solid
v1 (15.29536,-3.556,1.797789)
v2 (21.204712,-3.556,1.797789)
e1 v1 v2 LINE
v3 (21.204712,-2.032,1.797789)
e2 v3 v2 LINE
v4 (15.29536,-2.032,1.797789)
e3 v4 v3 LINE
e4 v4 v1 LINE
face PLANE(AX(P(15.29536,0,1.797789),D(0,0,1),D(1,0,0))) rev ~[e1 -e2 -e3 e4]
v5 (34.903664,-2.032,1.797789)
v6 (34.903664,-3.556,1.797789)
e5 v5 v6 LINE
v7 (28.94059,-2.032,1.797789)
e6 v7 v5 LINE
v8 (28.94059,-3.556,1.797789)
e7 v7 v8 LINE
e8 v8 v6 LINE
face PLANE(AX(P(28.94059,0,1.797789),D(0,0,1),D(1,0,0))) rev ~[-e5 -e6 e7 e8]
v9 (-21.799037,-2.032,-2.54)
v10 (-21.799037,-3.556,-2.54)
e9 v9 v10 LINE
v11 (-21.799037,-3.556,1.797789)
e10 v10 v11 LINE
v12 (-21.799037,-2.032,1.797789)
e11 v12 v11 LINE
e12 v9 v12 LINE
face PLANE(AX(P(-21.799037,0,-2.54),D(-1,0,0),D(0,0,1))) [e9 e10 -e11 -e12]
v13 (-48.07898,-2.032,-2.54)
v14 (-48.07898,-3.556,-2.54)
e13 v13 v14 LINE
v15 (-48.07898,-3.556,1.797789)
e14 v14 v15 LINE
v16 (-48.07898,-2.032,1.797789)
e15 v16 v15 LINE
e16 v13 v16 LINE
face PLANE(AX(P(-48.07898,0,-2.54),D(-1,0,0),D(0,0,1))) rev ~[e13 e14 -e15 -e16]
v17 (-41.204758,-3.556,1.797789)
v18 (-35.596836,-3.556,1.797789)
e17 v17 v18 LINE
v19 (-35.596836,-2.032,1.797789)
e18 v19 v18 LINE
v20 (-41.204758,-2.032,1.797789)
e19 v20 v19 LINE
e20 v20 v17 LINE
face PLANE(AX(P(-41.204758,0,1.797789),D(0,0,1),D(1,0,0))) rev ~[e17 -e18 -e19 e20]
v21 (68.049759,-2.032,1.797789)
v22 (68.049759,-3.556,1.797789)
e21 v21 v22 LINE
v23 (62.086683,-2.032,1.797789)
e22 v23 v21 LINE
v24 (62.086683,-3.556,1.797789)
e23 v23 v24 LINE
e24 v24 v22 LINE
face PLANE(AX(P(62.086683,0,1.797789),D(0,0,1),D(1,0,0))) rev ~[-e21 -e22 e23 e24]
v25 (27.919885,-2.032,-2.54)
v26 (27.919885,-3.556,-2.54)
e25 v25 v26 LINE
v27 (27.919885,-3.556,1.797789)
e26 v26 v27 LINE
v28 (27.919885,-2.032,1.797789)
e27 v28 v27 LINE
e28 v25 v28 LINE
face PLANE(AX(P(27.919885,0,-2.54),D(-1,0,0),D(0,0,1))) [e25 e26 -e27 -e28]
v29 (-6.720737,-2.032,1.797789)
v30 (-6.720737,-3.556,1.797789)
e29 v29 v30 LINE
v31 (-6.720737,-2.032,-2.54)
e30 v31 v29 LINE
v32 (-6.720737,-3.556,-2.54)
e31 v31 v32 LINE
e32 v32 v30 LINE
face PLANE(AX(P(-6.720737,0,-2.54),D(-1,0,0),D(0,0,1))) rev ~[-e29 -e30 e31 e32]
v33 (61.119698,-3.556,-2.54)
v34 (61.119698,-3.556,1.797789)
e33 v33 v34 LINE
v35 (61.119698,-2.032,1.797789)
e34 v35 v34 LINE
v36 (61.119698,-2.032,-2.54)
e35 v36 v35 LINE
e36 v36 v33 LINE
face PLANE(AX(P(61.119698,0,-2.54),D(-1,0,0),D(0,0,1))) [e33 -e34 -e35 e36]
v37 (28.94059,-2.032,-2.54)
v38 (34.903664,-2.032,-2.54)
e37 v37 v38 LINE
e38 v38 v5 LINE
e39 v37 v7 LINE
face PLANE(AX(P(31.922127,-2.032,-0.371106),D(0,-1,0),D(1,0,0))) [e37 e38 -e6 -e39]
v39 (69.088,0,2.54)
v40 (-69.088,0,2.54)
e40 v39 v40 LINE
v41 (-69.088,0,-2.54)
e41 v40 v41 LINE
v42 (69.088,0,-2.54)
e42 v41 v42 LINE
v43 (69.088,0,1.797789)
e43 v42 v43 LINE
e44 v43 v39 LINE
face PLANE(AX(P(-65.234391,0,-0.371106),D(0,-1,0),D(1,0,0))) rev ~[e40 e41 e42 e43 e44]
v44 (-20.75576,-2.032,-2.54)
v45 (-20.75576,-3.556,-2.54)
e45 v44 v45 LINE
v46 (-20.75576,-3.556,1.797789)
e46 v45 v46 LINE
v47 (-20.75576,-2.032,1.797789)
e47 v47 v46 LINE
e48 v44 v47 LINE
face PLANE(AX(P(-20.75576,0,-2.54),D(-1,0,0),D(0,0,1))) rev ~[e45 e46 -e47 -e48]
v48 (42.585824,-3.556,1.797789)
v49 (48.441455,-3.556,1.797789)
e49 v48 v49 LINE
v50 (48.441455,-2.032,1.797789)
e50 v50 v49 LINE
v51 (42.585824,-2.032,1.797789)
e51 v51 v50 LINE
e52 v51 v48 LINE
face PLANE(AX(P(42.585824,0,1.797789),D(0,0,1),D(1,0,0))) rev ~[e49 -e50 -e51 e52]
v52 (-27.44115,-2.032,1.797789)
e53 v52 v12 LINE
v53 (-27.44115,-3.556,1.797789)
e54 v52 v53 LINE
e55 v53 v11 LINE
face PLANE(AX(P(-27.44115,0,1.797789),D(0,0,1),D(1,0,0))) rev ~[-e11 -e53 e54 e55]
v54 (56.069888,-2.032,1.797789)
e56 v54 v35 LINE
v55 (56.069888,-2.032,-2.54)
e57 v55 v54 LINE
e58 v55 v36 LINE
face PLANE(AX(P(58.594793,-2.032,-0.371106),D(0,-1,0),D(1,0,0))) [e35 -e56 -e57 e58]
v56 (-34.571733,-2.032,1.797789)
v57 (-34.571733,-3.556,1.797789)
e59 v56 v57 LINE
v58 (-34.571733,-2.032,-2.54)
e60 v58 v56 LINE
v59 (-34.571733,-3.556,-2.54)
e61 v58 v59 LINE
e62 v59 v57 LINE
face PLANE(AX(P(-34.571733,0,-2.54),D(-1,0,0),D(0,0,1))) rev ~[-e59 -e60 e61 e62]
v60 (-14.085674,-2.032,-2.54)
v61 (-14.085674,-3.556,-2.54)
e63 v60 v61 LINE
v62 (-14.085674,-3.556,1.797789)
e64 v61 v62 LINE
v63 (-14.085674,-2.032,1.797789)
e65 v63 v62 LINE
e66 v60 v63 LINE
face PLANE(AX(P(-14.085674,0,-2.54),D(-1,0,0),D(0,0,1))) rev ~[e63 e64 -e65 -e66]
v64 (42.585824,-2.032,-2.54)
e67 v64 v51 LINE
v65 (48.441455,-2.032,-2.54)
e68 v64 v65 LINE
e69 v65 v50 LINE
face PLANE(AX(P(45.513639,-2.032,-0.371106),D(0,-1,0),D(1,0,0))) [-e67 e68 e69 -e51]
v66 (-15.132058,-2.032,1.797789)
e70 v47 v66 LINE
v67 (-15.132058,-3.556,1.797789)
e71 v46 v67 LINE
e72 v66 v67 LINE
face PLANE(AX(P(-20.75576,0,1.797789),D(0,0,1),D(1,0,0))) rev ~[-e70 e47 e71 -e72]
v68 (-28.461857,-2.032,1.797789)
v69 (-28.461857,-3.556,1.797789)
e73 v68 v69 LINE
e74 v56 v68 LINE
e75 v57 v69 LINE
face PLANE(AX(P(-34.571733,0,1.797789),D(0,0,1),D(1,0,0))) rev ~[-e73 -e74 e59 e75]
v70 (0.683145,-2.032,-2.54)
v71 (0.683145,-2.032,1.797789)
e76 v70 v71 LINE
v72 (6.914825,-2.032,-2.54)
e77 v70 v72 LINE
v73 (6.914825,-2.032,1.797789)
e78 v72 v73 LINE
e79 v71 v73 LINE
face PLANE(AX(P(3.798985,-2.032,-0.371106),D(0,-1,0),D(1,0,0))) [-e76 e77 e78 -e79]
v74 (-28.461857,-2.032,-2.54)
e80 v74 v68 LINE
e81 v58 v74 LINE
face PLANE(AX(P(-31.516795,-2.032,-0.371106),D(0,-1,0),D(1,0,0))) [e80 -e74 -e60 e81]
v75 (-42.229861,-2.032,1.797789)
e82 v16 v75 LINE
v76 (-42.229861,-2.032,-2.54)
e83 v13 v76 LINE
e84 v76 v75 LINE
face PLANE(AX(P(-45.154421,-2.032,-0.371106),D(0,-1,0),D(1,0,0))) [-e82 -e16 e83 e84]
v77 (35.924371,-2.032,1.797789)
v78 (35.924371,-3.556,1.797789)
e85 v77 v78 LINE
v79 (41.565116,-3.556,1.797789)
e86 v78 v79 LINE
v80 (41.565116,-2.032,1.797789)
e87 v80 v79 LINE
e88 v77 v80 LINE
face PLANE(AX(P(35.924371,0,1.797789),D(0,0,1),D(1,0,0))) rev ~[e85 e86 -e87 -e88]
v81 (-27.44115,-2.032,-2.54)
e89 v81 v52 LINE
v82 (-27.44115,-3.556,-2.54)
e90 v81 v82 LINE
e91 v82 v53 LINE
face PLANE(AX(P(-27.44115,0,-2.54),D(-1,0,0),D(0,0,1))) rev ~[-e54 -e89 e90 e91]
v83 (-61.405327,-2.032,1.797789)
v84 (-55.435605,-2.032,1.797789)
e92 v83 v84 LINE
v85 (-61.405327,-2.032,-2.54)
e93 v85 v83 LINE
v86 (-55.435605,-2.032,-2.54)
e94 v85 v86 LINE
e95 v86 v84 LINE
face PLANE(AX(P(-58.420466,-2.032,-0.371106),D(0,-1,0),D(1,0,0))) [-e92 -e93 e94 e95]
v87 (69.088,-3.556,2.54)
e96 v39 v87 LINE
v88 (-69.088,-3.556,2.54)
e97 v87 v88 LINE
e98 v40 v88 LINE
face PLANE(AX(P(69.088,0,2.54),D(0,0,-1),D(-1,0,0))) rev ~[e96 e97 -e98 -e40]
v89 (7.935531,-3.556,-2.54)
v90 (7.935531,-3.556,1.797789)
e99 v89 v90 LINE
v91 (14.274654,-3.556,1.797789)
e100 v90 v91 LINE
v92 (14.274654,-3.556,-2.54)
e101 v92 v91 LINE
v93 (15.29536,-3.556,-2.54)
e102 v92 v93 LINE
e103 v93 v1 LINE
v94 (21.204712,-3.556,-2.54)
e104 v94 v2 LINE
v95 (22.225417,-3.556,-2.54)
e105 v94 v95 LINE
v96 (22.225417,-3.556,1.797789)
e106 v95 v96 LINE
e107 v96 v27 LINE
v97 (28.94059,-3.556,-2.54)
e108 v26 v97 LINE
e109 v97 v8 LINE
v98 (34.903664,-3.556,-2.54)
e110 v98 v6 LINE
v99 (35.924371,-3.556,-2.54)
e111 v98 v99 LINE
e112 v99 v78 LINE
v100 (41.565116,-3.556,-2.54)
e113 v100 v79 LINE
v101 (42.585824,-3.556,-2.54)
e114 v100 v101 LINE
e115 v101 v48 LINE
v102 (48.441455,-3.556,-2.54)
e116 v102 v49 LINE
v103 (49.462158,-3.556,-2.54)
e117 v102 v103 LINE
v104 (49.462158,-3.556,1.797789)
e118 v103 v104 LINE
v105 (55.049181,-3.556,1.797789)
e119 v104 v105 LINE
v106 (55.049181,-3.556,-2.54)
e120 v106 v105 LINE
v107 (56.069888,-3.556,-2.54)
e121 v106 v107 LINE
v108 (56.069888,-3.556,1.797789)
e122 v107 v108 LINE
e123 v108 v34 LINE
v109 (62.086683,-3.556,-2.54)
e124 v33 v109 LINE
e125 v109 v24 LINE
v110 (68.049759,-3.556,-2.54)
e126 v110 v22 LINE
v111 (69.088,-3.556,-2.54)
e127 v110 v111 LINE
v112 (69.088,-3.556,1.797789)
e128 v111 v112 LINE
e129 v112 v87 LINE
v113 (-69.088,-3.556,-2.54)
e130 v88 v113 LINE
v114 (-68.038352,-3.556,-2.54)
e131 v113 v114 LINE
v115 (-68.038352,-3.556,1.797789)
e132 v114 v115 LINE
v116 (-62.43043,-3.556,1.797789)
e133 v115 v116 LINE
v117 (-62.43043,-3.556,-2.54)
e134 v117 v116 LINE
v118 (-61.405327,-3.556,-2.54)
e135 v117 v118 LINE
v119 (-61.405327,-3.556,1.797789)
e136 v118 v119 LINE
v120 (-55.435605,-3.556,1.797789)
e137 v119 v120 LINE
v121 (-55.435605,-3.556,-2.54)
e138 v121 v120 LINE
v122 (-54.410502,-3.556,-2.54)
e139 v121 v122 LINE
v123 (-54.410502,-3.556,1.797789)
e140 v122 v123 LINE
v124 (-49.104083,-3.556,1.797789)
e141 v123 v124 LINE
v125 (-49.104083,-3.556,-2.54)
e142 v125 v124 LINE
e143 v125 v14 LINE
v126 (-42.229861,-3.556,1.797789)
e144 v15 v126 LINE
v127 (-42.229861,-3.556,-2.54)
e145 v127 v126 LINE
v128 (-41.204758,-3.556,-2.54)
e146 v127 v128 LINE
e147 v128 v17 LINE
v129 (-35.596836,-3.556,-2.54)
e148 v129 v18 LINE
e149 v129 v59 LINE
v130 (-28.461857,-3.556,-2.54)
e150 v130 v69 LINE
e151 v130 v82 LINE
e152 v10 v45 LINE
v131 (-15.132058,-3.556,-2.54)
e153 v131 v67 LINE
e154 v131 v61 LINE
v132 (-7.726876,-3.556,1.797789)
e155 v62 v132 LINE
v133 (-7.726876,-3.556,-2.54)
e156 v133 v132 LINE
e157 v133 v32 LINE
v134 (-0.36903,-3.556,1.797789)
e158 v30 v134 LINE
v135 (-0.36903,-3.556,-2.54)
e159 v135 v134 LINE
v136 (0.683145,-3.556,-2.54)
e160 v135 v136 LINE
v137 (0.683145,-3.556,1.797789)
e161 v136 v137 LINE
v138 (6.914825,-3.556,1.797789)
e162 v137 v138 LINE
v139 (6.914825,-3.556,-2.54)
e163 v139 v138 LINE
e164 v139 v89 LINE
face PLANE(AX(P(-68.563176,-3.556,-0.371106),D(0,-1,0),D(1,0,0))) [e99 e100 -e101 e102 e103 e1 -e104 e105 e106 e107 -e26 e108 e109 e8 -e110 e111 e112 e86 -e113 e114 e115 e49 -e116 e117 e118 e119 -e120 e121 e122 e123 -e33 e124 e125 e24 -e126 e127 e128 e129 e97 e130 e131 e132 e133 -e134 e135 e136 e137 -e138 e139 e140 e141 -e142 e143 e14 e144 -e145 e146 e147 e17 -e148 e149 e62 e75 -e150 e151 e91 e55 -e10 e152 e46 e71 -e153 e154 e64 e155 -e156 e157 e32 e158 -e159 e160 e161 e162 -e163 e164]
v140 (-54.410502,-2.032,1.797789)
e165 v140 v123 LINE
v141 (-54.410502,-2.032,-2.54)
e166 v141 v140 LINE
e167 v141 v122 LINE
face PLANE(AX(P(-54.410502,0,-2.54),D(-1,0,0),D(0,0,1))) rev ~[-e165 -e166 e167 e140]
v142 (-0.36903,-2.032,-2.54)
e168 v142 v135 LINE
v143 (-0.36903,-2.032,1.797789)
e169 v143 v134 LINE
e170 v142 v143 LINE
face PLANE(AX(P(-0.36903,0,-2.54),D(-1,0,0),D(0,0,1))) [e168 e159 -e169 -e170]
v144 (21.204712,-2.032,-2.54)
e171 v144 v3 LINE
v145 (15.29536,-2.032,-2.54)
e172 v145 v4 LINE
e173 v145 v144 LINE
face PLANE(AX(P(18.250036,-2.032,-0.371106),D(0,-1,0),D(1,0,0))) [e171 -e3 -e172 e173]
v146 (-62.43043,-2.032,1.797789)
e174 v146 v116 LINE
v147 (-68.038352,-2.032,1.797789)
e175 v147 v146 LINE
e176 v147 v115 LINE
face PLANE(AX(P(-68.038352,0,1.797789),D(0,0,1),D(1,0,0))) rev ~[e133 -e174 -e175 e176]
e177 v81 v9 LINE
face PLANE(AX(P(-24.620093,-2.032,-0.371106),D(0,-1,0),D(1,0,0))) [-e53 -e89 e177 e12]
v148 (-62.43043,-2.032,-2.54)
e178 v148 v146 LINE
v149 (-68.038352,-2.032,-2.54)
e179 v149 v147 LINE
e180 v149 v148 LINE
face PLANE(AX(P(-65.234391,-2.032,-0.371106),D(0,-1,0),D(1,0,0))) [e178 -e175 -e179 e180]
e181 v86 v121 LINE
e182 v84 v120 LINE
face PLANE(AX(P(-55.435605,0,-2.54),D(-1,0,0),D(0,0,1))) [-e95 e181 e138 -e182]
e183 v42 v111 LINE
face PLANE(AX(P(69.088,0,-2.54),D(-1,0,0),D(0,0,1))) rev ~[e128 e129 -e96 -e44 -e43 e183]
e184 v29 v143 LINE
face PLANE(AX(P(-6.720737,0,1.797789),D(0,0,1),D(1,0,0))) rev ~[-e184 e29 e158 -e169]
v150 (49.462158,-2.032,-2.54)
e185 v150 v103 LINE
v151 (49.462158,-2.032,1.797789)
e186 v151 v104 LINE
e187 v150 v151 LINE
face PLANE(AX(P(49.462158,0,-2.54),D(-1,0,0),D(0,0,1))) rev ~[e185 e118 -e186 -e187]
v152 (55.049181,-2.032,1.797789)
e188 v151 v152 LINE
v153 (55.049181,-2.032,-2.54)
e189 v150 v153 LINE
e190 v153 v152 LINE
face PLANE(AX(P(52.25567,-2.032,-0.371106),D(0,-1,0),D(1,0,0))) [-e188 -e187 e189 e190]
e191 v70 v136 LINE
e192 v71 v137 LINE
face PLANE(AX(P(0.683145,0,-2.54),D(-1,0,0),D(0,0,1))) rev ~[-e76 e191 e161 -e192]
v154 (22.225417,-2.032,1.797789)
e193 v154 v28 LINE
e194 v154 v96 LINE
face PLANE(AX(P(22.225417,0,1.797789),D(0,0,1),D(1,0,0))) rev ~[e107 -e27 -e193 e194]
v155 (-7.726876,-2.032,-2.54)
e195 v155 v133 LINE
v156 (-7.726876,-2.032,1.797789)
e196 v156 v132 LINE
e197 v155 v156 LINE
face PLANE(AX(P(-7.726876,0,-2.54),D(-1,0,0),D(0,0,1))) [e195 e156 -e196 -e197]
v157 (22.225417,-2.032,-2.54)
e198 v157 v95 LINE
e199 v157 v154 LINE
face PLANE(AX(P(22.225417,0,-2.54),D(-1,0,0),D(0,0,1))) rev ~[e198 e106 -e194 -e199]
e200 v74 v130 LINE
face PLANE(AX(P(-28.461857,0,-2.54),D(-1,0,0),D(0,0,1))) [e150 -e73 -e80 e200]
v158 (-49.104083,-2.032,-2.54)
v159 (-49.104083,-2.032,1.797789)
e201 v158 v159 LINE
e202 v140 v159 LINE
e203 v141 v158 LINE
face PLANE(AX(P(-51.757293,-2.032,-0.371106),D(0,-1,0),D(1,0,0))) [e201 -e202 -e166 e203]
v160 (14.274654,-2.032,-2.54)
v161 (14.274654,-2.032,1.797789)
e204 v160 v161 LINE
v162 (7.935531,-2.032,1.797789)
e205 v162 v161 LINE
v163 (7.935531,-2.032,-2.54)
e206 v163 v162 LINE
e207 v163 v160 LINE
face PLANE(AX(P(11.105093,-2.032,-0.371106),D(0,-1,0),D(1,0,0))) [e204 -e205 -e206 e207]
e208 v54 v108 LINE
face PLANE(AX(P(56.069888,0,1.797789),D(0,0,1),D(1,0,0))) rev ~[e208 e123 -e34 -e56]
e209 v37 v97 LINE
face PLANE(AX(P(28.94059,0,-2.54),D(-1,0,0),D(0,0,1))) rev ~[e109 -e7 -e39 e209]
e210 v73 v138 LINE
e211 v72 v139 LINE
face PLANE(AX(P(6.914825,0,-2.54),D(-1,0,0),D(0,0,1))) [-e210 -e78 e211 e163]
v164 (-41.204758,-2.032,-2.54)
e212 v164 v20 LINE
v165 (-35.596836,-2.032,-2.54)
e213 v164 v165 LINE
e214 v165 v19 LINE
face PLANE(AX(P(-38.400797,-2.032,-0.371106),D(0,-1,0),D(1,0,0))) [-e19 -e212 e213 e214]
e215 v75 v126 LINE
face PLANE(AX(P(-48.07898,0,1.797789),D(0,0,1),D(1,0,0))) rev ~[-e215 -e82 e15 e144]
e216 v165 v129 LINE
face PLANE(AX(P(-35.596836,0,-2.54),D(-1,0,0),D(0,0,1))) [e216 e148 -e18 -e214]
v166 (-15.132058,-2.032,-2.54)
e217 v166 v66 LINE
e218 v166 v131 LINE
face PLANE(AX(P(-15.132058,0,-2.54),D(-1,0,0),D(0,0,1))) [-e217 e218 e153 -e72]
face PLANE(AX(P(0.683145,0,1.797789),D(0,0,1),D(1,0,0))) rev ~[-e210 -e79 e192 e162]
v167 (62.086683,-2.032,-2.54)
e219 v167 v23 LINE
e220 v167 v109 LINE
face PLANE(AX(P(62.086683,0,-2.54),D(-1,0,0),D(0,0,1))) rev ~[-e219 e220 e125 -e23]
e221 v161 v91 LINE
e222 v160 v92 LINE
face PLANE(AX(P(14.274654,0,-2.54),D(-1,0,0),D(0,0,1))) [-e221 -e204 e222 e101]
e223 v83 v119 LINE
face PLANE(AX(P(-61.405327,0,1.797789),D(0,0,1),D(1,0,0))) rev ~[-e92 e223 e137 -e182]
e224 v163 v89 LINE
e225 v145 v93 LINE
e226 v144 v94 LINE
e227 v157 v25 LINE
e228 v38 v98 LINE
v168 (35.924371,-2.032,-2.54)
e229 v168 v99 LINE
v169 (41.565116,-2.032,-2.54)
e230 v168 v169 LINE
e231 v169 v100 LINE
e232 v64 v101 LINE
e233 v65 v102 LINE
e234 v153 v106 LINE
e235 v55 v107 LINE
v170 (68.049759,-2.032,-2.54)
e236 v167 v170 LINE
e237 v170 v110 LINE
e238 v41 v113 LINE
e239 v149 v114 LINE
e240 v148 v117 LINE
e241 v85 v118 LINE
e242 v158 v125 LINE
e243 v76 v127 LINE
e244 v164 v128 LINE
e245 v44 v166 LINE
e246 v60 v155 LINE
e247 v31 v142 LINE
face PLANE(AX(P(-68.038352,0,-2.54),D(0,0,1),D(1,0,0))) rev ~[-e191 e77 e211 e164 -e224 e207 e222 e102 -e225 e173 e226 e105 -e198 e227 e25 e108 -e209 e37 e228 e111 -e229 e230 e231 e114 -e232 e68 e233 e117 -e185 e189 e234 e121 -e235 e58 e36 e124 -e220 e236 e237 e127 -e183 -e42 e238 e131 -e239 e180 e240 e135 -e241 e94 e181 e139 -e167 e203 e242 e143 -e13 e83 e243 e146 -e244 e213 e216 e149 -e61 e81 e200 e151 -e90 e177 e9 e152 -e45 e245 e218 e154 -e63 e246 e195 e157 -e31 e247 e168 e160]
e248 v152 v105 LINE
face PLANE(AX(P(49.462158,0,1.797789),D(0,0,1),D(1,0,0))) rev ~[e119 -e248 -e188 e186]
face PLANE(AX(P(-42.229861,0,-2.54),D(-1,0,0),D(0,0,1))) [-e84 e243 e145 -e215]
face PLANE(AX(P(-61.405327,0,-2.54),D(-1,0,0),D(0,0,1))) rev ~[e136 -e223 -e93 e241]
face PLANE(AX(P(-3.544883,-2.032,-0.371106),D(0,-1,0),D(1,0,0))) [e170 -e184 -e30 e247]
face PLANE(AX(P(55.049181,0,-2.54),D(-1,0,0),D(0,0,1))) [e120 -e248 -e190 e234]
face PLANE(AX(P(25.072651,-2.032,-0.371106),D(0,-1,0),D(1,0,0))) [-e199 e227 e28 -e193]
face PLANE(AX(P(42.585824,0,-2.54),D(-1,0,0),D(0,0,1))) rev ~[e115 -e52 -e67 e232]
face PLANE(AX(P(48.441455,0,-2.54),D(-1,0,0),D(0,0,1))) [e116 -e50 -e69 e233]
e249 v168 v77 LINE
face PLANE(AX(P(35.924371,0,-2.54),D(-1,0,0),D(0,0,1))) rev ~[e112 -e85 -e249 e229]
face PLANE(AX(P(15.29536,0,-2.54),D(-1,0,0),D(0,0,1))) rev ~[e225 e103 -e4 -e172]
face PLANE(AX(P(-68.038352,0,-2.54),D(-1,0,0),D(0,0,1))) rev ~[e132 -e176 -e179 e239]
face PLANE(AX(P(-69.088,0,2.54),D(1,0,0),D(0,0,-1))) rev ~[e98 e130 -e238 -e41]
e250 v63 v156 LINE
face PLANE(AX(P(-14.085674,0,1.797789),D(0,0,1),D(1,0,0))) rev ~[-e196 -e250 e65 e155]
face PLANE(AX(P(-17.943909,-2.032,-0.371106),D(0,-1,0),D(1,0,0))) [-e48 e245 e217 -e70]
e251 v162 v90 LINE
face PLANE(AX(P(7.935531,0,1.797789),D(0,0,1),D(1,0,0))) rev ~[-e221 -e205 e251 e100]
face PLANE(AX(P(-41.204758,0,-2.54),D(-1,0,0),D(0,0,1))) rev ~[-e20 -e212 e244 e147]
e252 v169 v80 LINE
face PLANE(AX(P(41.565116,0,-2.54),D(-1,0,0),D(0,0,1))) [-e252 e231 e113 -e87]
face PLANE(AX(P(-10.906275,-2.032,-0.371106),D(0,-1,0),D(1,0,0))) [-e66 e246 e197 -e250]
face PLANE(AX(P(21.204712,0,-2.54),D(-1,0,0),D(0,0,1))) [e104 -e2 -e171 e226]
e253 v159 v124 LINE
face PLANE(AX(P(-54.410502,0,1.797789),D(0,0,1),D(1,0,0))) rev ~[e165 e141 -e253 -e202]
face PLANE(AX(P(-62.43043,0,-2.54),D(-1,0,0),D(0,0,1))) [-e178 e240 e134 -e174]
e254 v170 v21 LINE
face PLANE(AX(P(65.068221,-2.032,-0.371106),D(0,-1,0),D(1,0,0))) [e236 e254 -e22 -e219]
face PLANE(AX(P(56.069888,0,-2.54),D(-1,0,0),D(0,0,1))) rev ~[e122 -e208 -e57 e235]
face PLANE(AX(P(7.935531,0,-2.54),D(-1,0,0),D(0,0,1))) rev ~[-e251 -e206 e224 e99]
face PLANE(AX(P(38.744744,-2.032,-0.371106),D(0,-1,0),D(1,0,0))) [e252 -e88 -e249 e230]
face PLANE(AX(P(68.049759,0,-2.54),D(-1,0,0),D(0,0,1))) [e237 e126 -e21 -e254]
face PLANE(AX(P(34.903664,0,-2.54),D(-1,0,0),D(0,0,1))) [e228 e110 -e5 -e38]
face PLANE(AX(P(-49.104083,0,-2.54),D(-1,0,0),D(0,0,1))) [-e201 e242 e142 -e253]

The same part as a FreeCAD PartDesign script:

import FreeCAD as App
import Part
import Sketcher
from FreeCAD import Vector
Q = App.Units.Quantity


def add_polygon(sketch, points):
    """Adds a closed chain of lines whose ends are joined by coincident constraints."""
    first, n = sketch.GeometryCount, len(points)
    for a, b in zip(points, points[1:] + points[:1]):
        sketch.addGeometry(Part.LineSegment(App.Vector(*a, 0), App.Vector(*b, 0)), False)
    for i in range(n):
        sketch.addConstraint(Sketcher.Constraint("Coincident", first + i, 2, first + (i + 1) % n, 1))

doc = App.newDocument("Part")
body = doc.addObject("PartDesign::Body", "Body")

sketch1 = body.newObject("Sketcher::SketchObject", "Sketch")
sketch1.AttachmentSupport = (doc.getObject("XZ_Plane"), [""])
sketch1.MapMode = "FlatFace"
add_polygon(sketch1, [(-69.1, -2.5), (-68, -2.5), (-68, 1.8), (-62.4, 1.8), (-62.4, -2.5), (-61.4, -2.5), (-61.4, 1.8), (-55.4, 1.8), (-55.4, -2.5), (-54.4, -2.5), (-54.4, 1.8), (-49.1, 1.8), (-49.1, -2.5), (-48.1, -2.5), (-48.1, 1.8), (-42.2, 1.8), (-42.2, -2.5), (-41.2, -2.5), (-41.2, 1.8), (-35.6, 1.8), (-35.6, -2.5), (-34.6, -2.5), (-34.6, 1.8), (-28.5, 1.8), (-28.5, -2.5), (-27.4, -2.5), (-27.4, 1.8), (-21.8, 1.8), (-21.8, -2.5), (-20.8, -2.5), (-20.8, 1.8), (-15.1, 1.8), (-15.1, -2.5), (-14.1, -2.5), (-14.1, 1.8), (-7.7, 1.8), (-7.7, -2.5), (-6.7, -2.5), (-6.7, 1.8), (-0.4, 1.8), (-0.4, -2.5), (0.7, -2.5), (0.7, 1.8), (6.9, 1.8), (6.9, -2.5), (7.9, -2.5), (7.9, 1.8), (14.3, 1.8), (14.3, -2.5), (15.3, -2.5), (15.3, 1.8), (21.2, 1.8), (21.2, -2.5), (22.2, -2.5), (22.2, 1.8), (27.9, 1.8), (27.9, -2.5), (28.9, -2.5), (28.9, 1.8), (34.9, 1.8), (34.9, -2.5), (35.9, -2.5), (35.9, 1.8), (41.6, 1.8), (41.6, -2.5), (42.6, -2.5), (42.6, 1.8), (48.4, 1.8), (48.4, -2.5), (49.5, -2.5), (49.5, 1.8), (55, 1.8), (55, -2.5), (56.1, -2.5), (56.1, 1.8), (61.1, 1.8), (61.1, -2.5), (62.1, -2.5), (62.1, 1.8), (68, 1.8), (68, -2.5), (69.1, -2.5), (69.1, 1.8), (69.1, 2.5), (-69.1, 2.5)])
sketch1.addConstraint(Sketcher.Constraint("Horizontal", 0))
sketch1.addConstraint(Sketcher.Constraint("Vertical", 1))
sketch1.addConstraint(Sketcher.Constraint("Horizontal", 2))
sketch1.addConstraint(Sketcher.Constraint("Vertical", 3))
sketch1.addConstraint(Sketcher.Constraint("Horizontal", 4))
sketch1.addConstraint(Sketcher.Constraint("Vertical", 5))
sketch1.addConstraint(Sketcher.Constraint("Horizontal", 6))
sketch1.addConstraint(Sketcher.Constraint("Vertical", 7))
sketch1.addConstraint(Sketcher.Constraint("Horizontal", 8))
sketch1.addConstraint(Sketcher.Constraint("Vertical", 9))
sketch1.addConstraint(Sketcher.Constraint("Horizontal", 10))
sketch1.addConstraint(Sketcher.Constraint("Vertical", 11))
sketch1.addConstraint(Sketcher.Constraint("Horizontal", 12))
sketch1.addConstraint(Sketcher.Constraint("Vertical", 13))
sketch1.addConstraint(Sketcher.Constraint("Horizontal", 14))
sketch1.addConstraint(Sketcher.Constraint("Vertical", 15))
sketch1.addConstraint(Sketcher.Constraint("Horizontal", 16))
sketch1.addConstraint(Sketcher.Constraint("Vertical", 17))
sketch1.addConstraint(Sketcher.Constraint("Horizontal", 18))
sketch1.addConstraint(Sketcher.Constraint("Vertical", 19))
sketch1.addConstraint(Sketcher.Constraint("Horizontal", 20))
sketch1.addConstraint(Sketcher.Constraint("Vertical", 21))
sketch1.addConstraint(Sketcher.Constraint("Horizontal", 22))
sketch1.addConstraint(Sketcher.Constraint("Vertical", 23))
sketch1.addConstraint(Sketcher.Constraint("Horizontal", 24))
sketch1.addConstraint(Sketcher.Constraint("Vertical", 25))
sketch1.addConstraint(Sketcher.Constraint("Horizontal", 26))
sketch1.addConstraint(Sketcher.Constraint("Vertical", 27))
sketch1.addConstraint(Sketcher.Constraint("Horizontal", 28))
sketch1.addConstraint(Sketcher.Constraint("Vertical", 29))
sketch1.addConstraint(Sketcher.Constraint("Horizontal", 30))
sketch1.addConstraint(Sketcher.Constraint("Vertical", 31))
sketch1.addConstraint(Sketcher.Constraint("Horizontal", 32))
sketch1.addConstraint(Sketcher.Constraint("Vertical", 33))
sketch1.addConstraint(Sketcher.Constraint("Horizontal", 34))
sketch1.addConstraint(Sketcher.Constraint("Vertical", 35))
sketch1.addConstraint(Sketcher.Constraint("Horizontal", 36))
sketch1.addConstraint(Sketcher.Constraint("Vertical", 37))
sketch1.addConstraint(Sketcher.Constraint("Horizontal", 38))
sketch1.addConstraint(Sketcher.Constraint("Vertical", 39))
sketch1.addConstraint(Sketcher.Constraint("Horizontal", 40))
sketch1.addConstraint(Sketcher.Constraint("Vertical", 41))
sketch1.addConstraint(Sketcher.Constraint("Horizontal", 42))
sketch1.addConstraint(Sketcher.Constraint("Vertical", 43))
sketch1.addConstraint(Sketcher.Constraint("Horizontal", 44))
sketch1.addConstraint(Sketcher.Constraint("Vertical", 45))
sketch1.addConstraint(Sketcher.Constraint("Horizontal", 46))
sketch1.addConstraint(Sketcher.Constraint("Vertical", 47))
sketch1.addConstraint(Sketcher.Constraint("Horizontal", 48))
sketch1.addConstraint(Sketcher.Constraint("Vertical", 49))
sketch1.addConstraint(Sketcher.Constraint("Horizontal", 50))
sketch1.addConstraint(Sketcher.Constraint("Vertical", 51))
sketch1.addConstraint(Sketcher.Constraint("Horizontal", 52))
sketch1.addConstraint(Sketcher.Constraint("Vertical", 53))
sketch1.addConstraint(Sketcher.Constraint("Horizontal", 54))
sketch1.addConstraint(Sketcher.Constraint("Vertical", 55))
sketch1.addConstraint(Sketcher.Constraint("Horizontal", 56))
sketch1.addConstraint(Sketcher.Constraint("Vertical", 57))
sketch1.addConstraint(Sketcher.Constraint("Horizontal", 58))
sketch1.addConstraint(Sketcher.Constraint("Vertical", 59))
sketch1.addConstraint(Sketcher.Constraint("Horizontal", 60))
sketch1.addConstraint(Sketcher.Constraint("Vertical", 61))
sketch1.addConstraint(Sketcher.Constraint("Horizontal", 62))
sketch1.addConstraint(Sketcher.Constraint("Vertical", 63))
sketch1.addConstraint(Sketcher.Constraint("Horizontal", 64))
sketch1.addConstraint(Sketcher.Constraint("Vertical", 65))
sketch1.addConstraint(Sketcher.Constraint("Horizontal", 66))
sketch1.addConstraint(Sketcher.Constraint("Vertical", 67))
sketch1.addConstraint(Sketcher.Constraint("Horizontal", 68))
sketch1.addConstraint(Sketcher.Constraint("Vertical", 69))
sketch1.addConstraint(Sketcher.Constraint("Horizontal", 70))
sketch1.addConstraint(Sketcher.Constraint("Vertical", 71))
sketch1.addConstraint(Sketcher.Constraint("Horizontal", 72))
sketch1.addConstraint(Sketcher.Constraint("Vertical", 73))
sketch1.addConstraint(Sketcher.Constraint("Horizontal", 74))
sketch1.addConstraint(Sketcher.Constraint("Vertical", 75))
sketch1.addConstraint(Sketcher.Constraint("Horizontal", 76))
sketch1.addConstraint(Sketcher.Constraint("Vertical", 77))
sketch1.addConstraint(Sketcher.Constraint("Horizontal", 78))
sketch1.addConstraint(Sketcher.Constraint("Vertical", 79))
sketch1.addConstraint(Sketcher.Constraint("Horizontal", 80))
sketch1.addConstraint(Sketcher.Constraint("Vertical", 81))
sketch1.addConstraint(Sketcher.Constraint("Vertical", 82))
sketch1.addConstraint(Sketcher.Constraint("Horizontal", 83))
sketch1.addConstraint(Sketcher.Constraint("Vertical", 84))
sketch1.addConstraint(Sketcher.Constraint("Symmetric", 80, 2, 83, 2, -1, 1))
sketch1.addConstraint(Sketcher.Constraint("Horizontal", 0, 2, 3, 2))
sketch1.addConstraint(Sketcher.Constraint("Horizontal", 2, 2, 5, 2))
sketch1.addConstraint(Sketcher.Constraint("Horizontal", 4, 2, 7, 2))
sketch1.addConstraint(Sketcher.Constraint("Horizontal", 6, 2, 9, 2))
sketch1.addConstraint(Sketcher.Constraint("Horizontal", 8, 2, 11, 2))
sketch1.addConstraint(Sketcher.Constraint("Horizontal", 10, 2, 13, 2))
sketch1.addConstraint(Sketcher.Constraint("Horizontal", 12, 2, 15, 2))
sketch1.addConstraint(Sketcher.Constraint("Horizontal", 14, 2, 17, 2))
sketch1.addConstraint(Sketcher.Constraint("Horizontal", 16, 2, 19, 2))
sketch1.addConstraint(Sketcher.Constraint("Horizontal", 18, 2, 21, 2))
sketch1.addConstraint(Sketcher.Constraint("Horizontal", 20, 2, 23, 2))
sketch1.addConstraint(Sketcher.Constraint("Horizontal", 22, 2, 25, 2))
sketch1.addConstraint(Sketcher.Constraint("Horizontal", 24, 2, 27, 2))
sketch1.addConstraint(Sketcher.Constraint("Horizontal", 26, 2, 29, 2))
sketch1.addConstraint(Sketcher.Constraint("Horizontal", 28, 2, 31, 2))
sketch1.addConstraint(Sketcher.Constraint("Horizontal", 30, 2, 33, 2))
sketch1.addConstraint(Sketcher.Constraint("Horizontal", 32, 2, 35, 2))
sketch1.addConstraint(Sketcher.Constraint("Horizontal", 34, 2, 37, 2))
sketch1.addConstraint(Sketcher.Constraint("Horizontal", 36, 2, 39, 2))
sketch1.addConstraint(Sketcher.Constraint("Horizontal", 38, 2, 41, 2))
sketch1.addConstraint(Sketcher.Constraint("Horizontal", 40, 2, 43, 2))
sketch1.addConstraint(Sketcher.Constraint("Horizontal", 42, 2, 45, 2))
sketch1.addConstraint(Sketcher.Constraint("Horizontal", 44, 2, 47, 2))
sketch1.addConstraint(Sketcher.Constraint("Horizontal", 46, 2, 49, 2))
sketch1.addConstraint(Sketcher.Constraint("Horizontal", 48, 2, 51, 2))
sketch1.addConstraint(Sketcher.Constraint("Horizontal", 50, 2, 53, 2))
sketch1.addConstraint(Sketcher.Constraint("Horizontal", 52, 2, 55, 2))
sketch1.addConstraint(Sketcher.Constraint("Horizontal", 54, 2, 57, 2))
sketch1.addConstraint(Sketcher.Constraint("Horizontal", 56, 2, 59, 2))
sketch1.addConstraint(Sketcher.Constraint("Horizontal", 58, 2, 61, 2))
sketch1.addConstraint(Sketcher.Constraint("Horizontal", 60, 2, 63, 2))
sketch1.addConstraint(Sketcher.Constraint("Horizontal", 62, 2, 65, 2))
sketch1.addConstraint(Sketcher.Constraint("Horizontal", 64, 2, 67, 2))
sketch1.addConstraint(Sketcher.Constraint("Horizontal", 66, 2, 69, 2))
sketch1.addConstraint(Sketcher.Constraint("Horizontal", 68, 2, 71, 2))
sketch1.addConstraint(Sketcher.Constraint("Horizontal", 70, 2, 73, 2))
sketch1.addConstraint(Sketcher.Constraint("Horizontal", 72, 2, 75, 2))
sketch1.addConstraint(Sketcher.Constraint("Horizontal", 74, 2, 77, 2))
sketch1.addConstraint(Sketcher.Constraint("Horizontal", 76, 2, 79, 2))
sketch1.addConstraint(Sketcher.Constraint("Horizontal", 78, 2, 81, 2))
sketch1.addConstraint(Sketcher.Constraint("Equal", 4, 8))
sketch1.addConstraint(Sketcher.Constraint("Equal", 8, 12))
sketch1.addConstraint(Sketcher.Constraint("Equal", 12, 16))
sketch1.addConstraint(Sketcher.Constraint("Equal", 2, 18))
sketch1.addConstraint(Sketcher.Constraint("Equal", 16, 20))
sketch1.addConstraint(Sketcher.Constraint("Equal", 24, 44))
sketch1.addConstraint(Sketcher.Constraint("Equal", 44, 48))
sketch1.addConstraint(Sketcher.Constraint("Equal", 48, 52))
sketch1.addConstraint(Sketcher.Constraint("Equal", 52, 56))
sketch1.addConstraint(Sketcher.Constraint("Equal", 56, 60))
sketch1.addConstraint(Sketcher.Constraint("Equal", 60, 64))
sketch1.addConstraint(Sketcher.Constraint("Equal", 56, 68))
sketch1.addConstraint(Sketcher.Constraint("Equal", 64, 72))
sketch1.addConstraint(Sketcher.Constraint("Equal", 58, 78))
sketch1.addConstraint(Sketcher.Constraint("DistanceY", 84, 2, 84, 1, Q("0.2 in")))
sketch1.addConstraint(Sketcher.Constraint("DistanceX", 83, 2, 83, 1, Q("5.44 in")))
sketch1.addConstraint(Sketcher.Constraint("DistanceX", 30, 1, 30, 2, Q("5.623702 mm")))
sketch1.addConstraint(Sketcher.Constraint("DistanceX", 34, 1, 34, 2, Q("6.358798 mm")))
sketch1.addConstraint(Sketcher.Constraint("DistanceX", 0, 1, 0, 2, Q("1.049648 mm")))
sketch1.addConstraint(Sketcher.Constraint("DistanceX", 2, 1, 2, 2, Q("5.607922 mm")))
sketch1.addConstraint(Sketcher.Constraint("DistanceX", 6, 1, 6, 2, Q("5.969722 mm")))
sketch1.addConstraint(Sketcher.Constraint("DistanceX", 10, 1, 10, 2, Q("5.306419 mm")))
sketch1.addConstraint(Sketcher.Constraint("DistanceX", 14, 1, 14, 2, Q("5.849119 mm")))
sketch1.addConstraint(Sketcher.Constraint("DistanceX", 36, 1, 36, 2, Q("1.006139 mm")))
sketch1.addConstraint(Sketcher.Constraint("DistanceX", 42, 1, 42, 2, Q("6.23168 mm")))
sketch1.addConstraint(Sketcher.Constraint("DistanceX", 50, 1, 50, 2, Q("5.909352 mm")))
sketch1.addConstraint(Sketcher.Constraint("DistanceX", 66, 1, 66, 2, Q("5.855631 mm")))
sketch1.addConstraint(Sketcher.Constraint("DistanceX", 74, 1, 74, 2, Q("5.04981 mm")))
sketch1.addConstraint(Sketcher.Constraint("DistanceX", 80, 1, 80, 2, Q("1.038241 mm")))
sketch1.addConstraint(Sketcher.Constraint("DistanceY", 1, 1, 1, 2, Q("4.337789 mm")))
sketch1.addConstraint(Sketcher.Constraint("DistanceX", 4, 1, 4, 2, Q("1.025103 mm")))
sketch1.addConstraint(Sketcher.Constraint("DistanceX", 22, 1, 22, 2, Q("6.109877 mm")))
sketch1.addConstraint(Sketcher.Constraint("DistanceX", 24, 1, 24, 2, Q("1.020707 mm")))
sketch1.addConstraint(Sketcher.Constraint("DistanceX", 26, 1, 26, 2, Q("5.642112 mm")))
sketch1.addConstraint(Sketcher.Constraint("DistanceX", 28, 1, 28, 2, Q("1.043277 mm")))
sketch1.addConstraint(Sketcher.Constraint("DistanceX", 32, 1, 32, 2, Q("1.046385 mm")))
sketch1.addConstraint(Sketcher.Constraint("DistanceX", 38, 1, 38, 2, Q("6.351706 mm")))
sketch1.addConstraint(Sketcher.Constraint("DistanceX", 40, 1, 40, 2, Q("1.052176 mm")))
sketch1.addConstraint(Sketcher.Constraint("DistanceX", 46, 1, 46, 2, Q("6.339123 mm")))
sketch1.addConstraint(Sketcher.Constraint("DistanceX", 54, 1, 54, 2, Q("5.694468 mm")))
sketch1.addConstraint(Sketcher.Constraint("DistanceX", 58, 1, 58, 2, Q("5.963074 mm")))
sketch1.addConstraint(Sketcher.Constraint("DistanceX", 62, 1, 62, 2, Q("5.640745 mm")))
sketch1.addConstraint(Sketcher.Constraint("DistanceX", 70, 1, 70, 2, Q("5.587023 mm")))
pad1 = body.newObject("PartDesign::Pad", "Pad")
pad1.Profile = sketch1
pad1.Length = Q("0.14 in")

sketch2 = body.newObject("Sketcher::SketchObject", "Sketch001")
sketch2.AttachmentSupport = (doc.getObject("XZ_Plane"), [""])
sketch2.MapMode = "FlatFace"
add_polygon(sketch2, [(-68, 1.8), (-68, -2.5), (-62.4, -2.5), (-62.4, 1.8)])
add_polygon(sketch2, [(-61.4, 1.8), (-61.4, -2.5), (-55.4, -2.5), (-55.4, 1.8)])
add_polygon(sketch2, [(-54.4, 1.8), (-54.4, -2.5), (-49.1, -2.5), (-49.1, 1.8)])
add_polygon(sketch2, [(-48.1, 1.8), (-48.1, -2.5), (-42.2, -2.5), (-42.2, 1.8)])
add_polygon(sketch2, [(-41.2, 1.8), (-41.2, -2.5), (-35.6, -2.5), (-35.6, 1.8)])
add_polygon(sketch2, [(-34.6, 1.8), (-34.6, -2.5), (-28.5, -2.5), (-28.5, 1.8)])
add_polygon(sketch2, [(-27.4, 1.8), (-27.4, -2.5), (-21.8, -2.5), (-21.8, 1.8)])
add_polygon(sketch2, [(-20.8, 1.8), (-20.8, -2.5), (-15.1, -2.5), (-15.1, 1.8)])
add_polygon(sketch2, [(-14.1, 1.8), (-14.1, -2.5), (-7.7, -2.5), (-7.7, 1.8)])
add_polygon(sketch2, [(-6.7, 1.8), (-6.7, -2.5), (-0.4, -2.5), (-0.4, 1.8)])
add_polygon(sketch2, [(0.7, 1.8), (0.7, -2.5), (6.9, -2.5), (6.9, 1.8)])
add_polygon(sketch2, [(7.9, 1.8), (7.9, -2.5), (14.3, -2.5), (14.3, 1.8)])
add_polygon(sketch2, [(15.3, 1.8), (15.3, -2.5), (21.2, -2.5), (21.2, 1.8)])
add_polygon(sketch2, [(22.2, 1.8), (22.2, -2.5), (27.9, -2.5), (27.9, 1.8)])
add_polygon(sketch2, [(28.9, 1.8), (28.9, -2.5), (34.9, -2.5), (34.9, 1.8)])
add_polygon(sketch2, [(35.9, 1.8), (35.9, -2.5), (41.6, -2.5), (41.6, 1.8)])
add_polygon(sketch2, [(42.6, 1.8), (42.6, -2.5), (48.4, -2.5), (48.4, 1.8)])
add_polygon(sketch2, [(49.5, 1.8), (49.5, -2.5), (55, -2.5), (55, 1.8)])
add_polygon(sketch2, [(56.1, 1.8), (56.1, -2.5), (61.1, -2.5), (61.1, 1.8)])
add_polygon(sketch2, [(62.1, 1.8), (62.1, -2.5), (68, -2.5), (68, 1.8)])
sketch2.addConstraint(Sketcher.Constraint("Vertical", 0))
sketch2.addConstraint(Sketcher.Constraint("Horizontal", 1))
sketch2.addConstraint(Sketcher.Constraint("Vertical", 2))
sketch2.addConstraint(Sketcher.Constraint("Horizontal", 3))
sketch2.addConstraint(Sketcher.Constraint("Vertical", 4))
sketch2.addConstraint(Sketcher.Constraint("Horizontal", 5))
sketch2.addConstraint(Sketcher.Constraint("Vertical", 6))
sketch2.addConstraint(Sketcher.Constraint("Horizontal", 7))
sketch2.addConstraint(Sketcher.Constraint("Vertical", 8))
sketch2.addConstraint(Sketcher.Constraint("Horizontal", 9))
sketch2.addConstraint(Sketcher.Constraint("Vertical", 10))
sketch2.addConstraint(Sketcher.Constraint("Horizontal", 11))
sketch2.addConstraint(Sketcher.Constraint("Vertical", 12))
sketch2.addConstraint(Sketcher.Constraint("Horizontal", 13))
sketch2.addConstraint(Sketcher.Constraint("Vertical", 14))
sketch2.addConstraint(Sketcher.Constraint("Horizontal", 15))
sketch2.addConstraint(Sketcher.Constraint("Vertical", 16))
sketch2.addConstraint(Sketcher.Constraint("Horizontal", 17))
sketch2.addConstraint(Sketcher.Constraint("Vertical", 18))
sketch2.addConstraint(Sketcher.Constraint("Horizontal", 19))
sketch2.addConstraint(Sketcher.Constraint("Vertical", 20))
sketch2.addConstraint(Sketcher.Constraint("Horizontal", 21))
sketch2.addConstraint(Sketcher.Constraint("Vertical", 22))
sketch2.addConstraint(Sketcher.Constraint("Horizontal", 23))
sketch2.addConstraint(Sketcher.Constraint("Vertical", 24))
sketch2.addConstraint(Sketcher.Constraint("Horizontal", 25))
sketch2.addConstraint(Sketcher.Constraint("Vertical", 26))
sketch2.addConstraint(Sketcher.Constraint("Horizontal", 27))
sketch2.addConstraint(Sketcher.Constraint("Vertical", 28))
sketch2.addConstraint(Sketcher.Constraint("Horizontal", 29))
sketch2.addConstraint(Sketcher.Constraint("Vertical", 30))
sketch2.addConstraint(Sketcher.Constraint("Horizontal", 31))
sketch2.addConstraint(Sketcher.Constraint("Vertical", 32))
sketch2.addConstraint(Sketcher.Constraint("Horizontal", 33))
sketch2.addConstraint(Sketcher.Constraint("Vertical", 34))
sketch2.addConstraint(Sketcher.Constraint("Horizontal", 35))
sketch2.addConstraint(Sketcher.Constraint("Vertical", 36))
sketch2.addConstraint(Sketcher.Constraint("Horizontal", 37))
sketch2.addConstraint(Sketcher.Constraint("Vertical", 38))
sketch2.addConstraint(Sketcher.Constraint("Horizontal", 39))
sketch2.addConstraint(Sketcher.Constraint("Vertical", 40))
sketch2.addConstraint(Sketcher.Constraint("Horizontal", 41))
sketch2.addConstraint(Sketcher.Constraint("Vertical", 42))
sketch2.addConstraint(Sketcher.Constraint("Horizontal", 43))
sketch2.addConstraint(Sketcher.Constraint("Vertical", 44))
sketch2.addConstraint(Sketcher.Constraint("Horizontal", 45))
sketch2.addConstraint(Sketcher.Constraint("Vertical", 46))
sketch2.addConstraint(Sketcher.Constraint("Horizontal", 47))
sketch2.addConstraint(Sketcher.Constraint("Vertical", 48))
sketch2.addConstraint(Sketcher.Constraint("Horizontal", 49))
sketch2.addConstraint(Sketcher.Constraint("Vertical", 50))
sketch2.addConstraint(Sketcher.Constraint("Horizontal", 51))
sketch2.addConstraint(Sketcher.Constraint("Vertical", 52))
sketch2.addConstraint(Sketcher.Constraint("Horizontal", 53))
sketch2.addConstraint(Sketcher.Constraint("Vertical", 54))
sketch2.addConstraint(Sketcher.Constraint("Horizontal", 55))
sketch2.addConstraint(Sketcher.Constraint("Vertical", 56))
sketch2.addConstraint(Sketcher.Constraint("Horizontal", 57))
sketch2.addConstraint(Sketcher.Constraint("Vertical", 58))
sketch2.addConstraint(Sketcher.Constraint("Horizontal", 59))
sketch2.addConstraint(Sketcher.Constraint("Vertical", 60))
sketch2.addConstraint(Sketcher.Constraint("Horizontal", 61))
sketch2.addConstraint(Sketcher.Constraint("Vertical", 62))
sketch2.addConstraint(Sketcher.Constraint("Horizontal", 63))
sketch2.addConstraint(Sketcher.Constraint("Vertical", 64))
sketch2.addConstraint(Sketcher.Constraint("Horizontal", 65))
sketch2.addConstraint(Sketcher.Constraint("Vertical", 66))
sketch2.addConstraint(Sketcher.Constraint("Horizontal", 67))
sketch2.addConstraint(Sketcher.Constraint("Vertical", 68))
sketch2.addConstraint(Sketcher.Constraint("Horizontal", 69))
sketch2.addConstraint(Sketcher.Constraint("Vertical", 70))
sketch2.addConstraint(Sketcher.Constraint("Horizontal", 71))
sketch2.addConstraint(Sketcher.Constraint("Vertical", 72))
sketch2.addConstraint(Sketcher.Constraint("Horizontal", 73))
sketch2.addConstraint(Sketcher.Constraint("Vertical", 74))
sketch2.addConstraint(Sketcher.Constraint("Horizontal", 75))
sketch2.addConstraint(Sketcher.Constraint("Vertical", 76))
sketch2.addConstraint(Sketcher.Constraint("Horizontal", 77))
sketch2.addConstraint(Sketcher.Constraint("Vertical", 78))
sketch2.addConstraint(Sketcher.Constraint("Horizontal", 79))
sketch2.addConstraint(Sketcher.Constraint("Horizontal", 1, 2, 4, 2))
sketch2.addConstraint(Sketcher.Constraint("Horizontal", 3, 2, 6, 2))
sketch2.addConstraint(Sketcher.Constraint("Horizontal", 5, 2, 8, 2))
sketch2.addConstraint(Sketcher.Constraint("Horizontal", 7, 2, 10, 2))
sketch2.addConstraint(Sketcher.Constraint("Horizontal", 9, 2, 12, 2))
sketch2.addConstraint(Sketcher.Constraint("Horizontal", 11, 2, 14, 2))
sketch2.addConstraint(Sketcher.Constraint("Horizontal", 13, 2, 16, 2))
sketch2.addConstraint(Sketcher.Constraint("Horizontal", 15, 2, 18, 2))
sketch2.addConstraint(Sketcher.Constraint("Horizontal", 17, 2, 20, 2))
sketch2.addConstraint(Sketcher.Constraint("Horizontal", 19, 2, 22, 2))
sketch2.addConstraint(Sketcher.Constraint("Horizontal", 21, 2, 24, 2))
sketch2.addConstraint(Sketcher.Constraint("Horizontal", 23, 2, 26, 2))
sketch2.addConstraint(Sketcher.Constraint("Horizontal", 25, 2, 28, 2))
sketch2.addConstraint(Sketcher.Constraint("Horizontal", 27, 2, 30, 2))
sketch2.addConstraint(Sketcher.Constraint("Horizontal", 29, 2, 32, 2))
sketch2.addConstraint(Sketcher.Constraint("Horizontal", 31, 2, 34, 2))
sketch2.addConstraint(Sketcher.Constraint("Horizontal", 33, 2, 36, 2))
sketch2.addConstraint(Sketcher.Constraint("Horizontal", 35, 2, 38, 2))
sketch2.addConstraint(Sketcher.Constraint("Horizontal", 37, 2, 40, 2))
sketch2.addConstraint(Sketcher.Constraint("Horizontal", 39, 2, 42, 2))
sketch2.addConstraint(Sketcher.Constraint("Horizontal", 41, 2, 44, 2))
sketch2.addConstraint(Sketcher.Constraint("Horizontal", 43, 2, 46, 2))
sketch2.addConstraint(Sketcher.Constraint("Horizontal", 45, 2, 48, 2))
sketch2.addConstraint(Sketcher.Constraint("Horizontal", 47, 2, 50, 2))
sketch2.addConstraint(Sketcher.Constraint("Horizontal", 49, 2, 52, 2))
sketch2.addConstraint(Sketcher.Constraint("Horizontal", 51, 2, 54, 2))
sketch2.addConstraint(Sketcher.Constraint("Horizontal", 53, 2, 56, 2))
sketch2.addConstraint(Sketcher.Constraint("Horizontal", 55, 2, 58, 2))
sketch2.addConstraint(Sketcher.Constraint("Horizontal", 57, 2, 60, 2))
sketch2.addConstraint(Sketcher.Constraint("Horizontal", 59, 2, 62, 2))
sketch2.addConstraint(Sketcher.Constraint("Horizontal", 61, 2, 64, 2))
sketch2.addConstraint(Sketcher.Constraint("Horizontal", 63, 2, 66, 2))
sketch2.addConstraint(Sketcher.Constraint("Horizontal", 65, 2, 68, 2))
sketch2.addConstraint(Sketcher.Constraint("Horizontal", 67, 2, 70, 2))
sketch2.addConstraint(Sketcher.Constraint("Horizontal", 69, 2, 72, 2))
sketch2.addConstraint(Sketcher.Constraint("Horizontal", 71, 2, 74, 2))
sketch2.addConstraint(Sketcher.Constraint("Horizontal", 73, 2, 76, 2))
sketch2.addConstraint(Sketcher.Constraint("Horizontal", 75, 2, 78, 2))
sketch2.addConstraint(Sketcher.Constraint("Equal", 3, 17))
sketch2.addConstraint(Sketcher.Constraint("Equal", 59, 77))
sketch2.addConstraint(Sketcher.Constraint("DistanceY", 0, 2, -1, 1, Q("0.1 in")))
sketch2.addConstraint(Sketcher.Constraint("DistanceX", 29, 1, 29, 2, Q("5.623702 mm")))
sketch2.addConstraint(Sketcher.Constraint("DistanceX", 33, 1, 33, 2, Q("6.358798 mm")))
sketch2.addConstraint(Sketcher.Constraint("DistanceX", 1, 1, 1, 2, Q("5.607922 mm")))
sketch2.addConstraint(Sketcher.Constraint("DistanceX", 5, 1, 5, 2, Q("5.969722 mm")))
sketch2.addConstraint(Sketcher.Constraint("DistanceX", 9, 1, 9, 2, Q("5.306419 mm")))
sketch2.addConstraint(Sketcher.Constraint("DistanceX", 13, 1, 13, 2, Q("5.849119 mm")))
sketch2.addConstraint(Sketcher.Constraint("DistanceX", 41, 1, 41, 2, Q("6.23168 mm")))
sketch2.addConstraint(Sketcher.Constraint("DistanceX", 49, 1, 49, 2, Q("5.909352 mm")))
sketch2.addConstraint(Sketcher.Constraint("DistanceX", 65, 1, 65, 2, Q("5.855631 mm")))
sketch2.addConstraint(Sketcher.Constraint("DistanceX", 73, 1, 73, 2, Q("5.04981 mm")))
sketch2.addConstraint(Sketcher.Constraint("DistanceY", 0, 2, 0, 1, Q("4.337789 mm")))
sketch2.addConstraint(Sketcher.Constraint("DistanceX", 21, 1, 21, 2, Q("6.109877 mm")))
sketch2.addConstraint(Sketcher.Constraint("DistanceX", 25, 1, 25, 2, Q("5.642112 mm")))
sketch2.addConstraint(Sketcher.Constraint("DistanceX", 37, 1, 37, 2, Q("6.351706 mm")))
sketch2.addConstraint(Sketcher.Constraint("DistanceX", 45, 1, 45, 2, Q("6.339123 mm")))
sketch2.addConstraint(Sketcher.Constraint("DistanceX", 53, 1, 53, 2, Q("5.694468 mm")))
sketch2.addConstraint(Sketcher.Constraint("DistanceX", 57, 1, 57, 2, Q("5.963074 mm")))
sketch2.addConstraint(Sketcher.Constraint("DistanceX", 61, 1, 61, 2, Q("5.640745 mm")))
sketch2.addConstraint(Sketcher.Constraint("DistanceX", 69, 1, 69, 2, Q("5.587023 mm")))
sketch2.addConstraint(Sketcher.Constraint("DistanceX", 0, 2, -1, 1, Q("68.038352 mm")))
sketch2.addConstraint(Sketcher.Constraint("DistanceX", 12, 2, -1, 1, Q("48.07898 mm")))
sketch2.addConstraint(Sketcher.Constraint("DistanceX", 24, 2, -1, 1, Q("27.44115 mm")))
sketch2.addConstraint(Sketcher.Constraint("DistanceX", 28, 2, -1, 1, Q("20.75576 mm")))
sketch2.addConstraint(Sketcher.Constraint("DistanceX", 37, 2, -1, 1, Q("0.36903 mm")))
sketch2.addConstraint(Sketcher.Constraint("DistanceX", -1, 1, 44, 2, Q("7.935531 mm")))
sketch2.addConstraint(Sketcher.Constraint("DistanceX", -1, 1, 48, 2, Q("15.29536 mm")))
sketch2.addConstraint(Sketcher.Constraint("DistanceX", -1, 1, 56, 2, Q("28.94059 mm")))
sketch2.addConstraint(Sketcher.Constraint("DistanceX", -1, 1, 60, 2, Q("35.924371 mm")))
sketch2.addConstraint(Sketcher.Constraint("DistanceX", -1, 1, 68, 2, Q("49.462158 mm")))
sketch2.addConstraint(Sketcher.Constraint("DistanceX", -1, 1, 72, 2, Q("56.069888 mm")))
sketch2.addConstraint(Sketcher.Constraint("DistanceX", -1, 1, 77, 2, Q("68.049759 mm")))
sketch2.addConstraint(Sketcher.Constraint("DistanceX", 4, 2, -1, 1, Q("61.405327 mm")))
sketch2.addConstraint(Sketcher.Constraint("DistanceX", 8, 2, -1, 1, Q("54.410502 mm")))
sketch2.addConstraint(Sketcher.Constraint("DistanceX", 16, 2, -1, 1, Q("41.204758 mm")))
sketch2.addConstraint(Sketcher.Constraint("DistanceX", 20, 2, -1, 1, Q("34.571733 mm")))
sketch2.addConstraint(Sketcher.Constraint("DistanceX", 32, 2, -1, 1, Q("14.085674 mm")))
sketch2.addConstraint(Sketcher.Constraint("DistanceX", -1, 1, 40, 2, Q("0.683145 mm")))
sketch2.addConstraint(Sketcher.Constraint("DistanceX", -1, 1, 52, 2, Q("22.225417 mm")))
sketch2.addConstraint(Sketcher.Constraint("DistanceX", -1, 1, 64, 2, Q("42.585824 mm")))
pad2 = body.newObject("PartDesign::Pad", "Pad001")
pad2.Profile = sketch2
pad2.Length = Q("0.08 in")

doc.recompute()
